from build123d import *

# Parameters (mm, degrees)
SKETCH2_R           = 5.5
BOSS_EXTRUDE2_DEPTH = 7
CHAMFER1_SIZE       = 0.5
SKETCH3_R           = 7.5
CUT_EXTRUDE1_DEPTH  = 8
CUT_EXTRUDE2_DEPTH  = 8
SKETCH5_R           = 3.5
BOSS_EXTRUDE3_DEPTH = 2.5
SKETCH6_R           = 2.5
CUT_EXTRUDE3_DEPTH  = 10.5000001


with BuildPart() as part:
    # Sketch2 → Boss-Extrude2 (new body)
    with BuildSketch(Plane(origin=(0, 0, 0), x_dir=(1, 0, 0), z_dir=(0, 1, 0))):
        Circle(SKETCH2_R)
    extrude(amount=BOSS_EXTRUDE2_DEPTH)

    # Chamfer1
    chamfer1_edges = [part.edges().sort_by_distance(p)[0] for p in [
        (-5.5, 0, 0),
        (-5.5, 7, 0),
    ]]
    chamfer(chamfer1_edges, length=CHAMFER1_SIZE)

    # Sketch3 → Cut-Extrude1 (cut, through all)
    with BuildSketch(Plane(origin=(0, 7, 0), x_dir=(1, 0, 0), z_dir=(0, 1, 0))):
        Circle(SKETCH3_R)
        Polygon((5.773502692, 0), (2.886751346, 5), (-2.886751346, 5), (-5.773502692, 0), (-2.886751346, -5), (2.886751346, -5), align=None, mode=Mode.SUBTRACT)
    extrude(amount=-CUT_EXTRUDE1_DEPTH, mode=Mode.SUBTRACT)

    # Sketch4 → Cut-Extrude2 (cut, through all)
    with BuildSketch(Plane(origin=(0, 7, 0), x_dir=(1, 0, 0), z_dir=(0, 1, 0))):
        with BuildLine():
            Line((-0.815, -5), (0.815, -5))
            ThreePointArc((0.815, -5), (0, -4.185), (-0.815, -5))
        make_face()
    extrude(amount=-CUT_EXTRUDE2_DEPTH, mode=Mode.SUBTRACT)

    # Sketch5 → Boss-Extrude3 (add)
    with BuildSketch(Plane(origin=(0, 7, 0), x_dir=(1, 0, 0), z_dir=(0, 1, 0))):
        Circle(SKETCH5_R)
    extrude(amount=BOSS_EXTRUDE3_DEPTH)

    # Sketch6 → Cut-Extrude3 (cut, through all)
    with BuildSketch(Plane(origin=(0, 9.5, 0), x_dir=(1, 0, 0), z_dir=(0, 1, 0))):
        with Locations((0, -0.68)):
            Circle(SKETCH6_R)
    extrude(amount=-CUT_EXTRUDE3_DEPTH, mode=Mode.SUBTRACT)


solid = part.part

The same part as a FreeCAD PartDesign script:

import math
import FreeCAD as App
import Part
import Sketcher
Q = App.Units.Quantity


def edges_at(feature, points):
    """Names of the edges that pass closest to the given points."""
    edges = feature.Shape.Edges
    near = lambda p: min(range(len(edges)), key=lambda i: edges[i].distToShape(Part.Vertex(*p))[0])
    return sorted({f"Edge{near(p) + 1}" for p in points})


def add_polygon(sketch, points):
    """Adds a closed chain of lines whose ends are joined by coincident constraints."""
    first, n = sketch.GeometryCount, len(points)
    for a, b in zip(points, points[1:] + points[:1]):
        sketch.addGeometry(Part.LineSegment(App.Vector(*a, 0), App.Vector(*b, 0)), False)
    for i in range(n):
        sketch.addConstraint(Sketcher.Constraint("Coincident", first + i, 2, first + (i + 1) % n, 1))

doc = App.newDocument("Part")
body = doc.addObject("PartDesign::Body", "Body")

sketch1 = body.newObject("Sketcher::SketchObject", "Sketch")
sketch1.AttachmentSupport = (doc.getObject("XZ_Plane"), [""])
sketch1.MapMode = "FlatFace"
sketch1.addGeometry(Part.Circle(App.Vector(0, 0, 0), App.Vector(0, 0, 1), 5.5), False)
sketch1.addConstraint([
    Sketcher.Constraint("Coincident", 0, 3, -1, 1),
    Sketcher.Constraint("Diameter", 0, Q("11 mm")),
])
pad1 = body.newObject("PartDesign::Pad", "Pad")
pad1.Profile = sketch1
pad1.Length = 7
pad1.Reversed = True
doc.recompute()

chamfer = body.newObject("PartDesign::Chamfer", "Chamfer")
chamfer.Base = (pad1, edges_at(pad1, [(-5.5, 0, 0), (-5.5, 7, 0)]))
chamfer.Size = 0.5

sketch2 = body.newObject("Sketcher::SketchObject", "Sketch001")
sketch2.AttachmentSupport = (doc.getObject("XZ_Plane"), [""])
sketch2.MapMode = "FlatFace"
sketch2.AttachmentOffset = App.Placement(App.Vector(0, 0, -7), App.Rotation())
sketch2.addGeometry(Part.Circle(App.Vector(0, 0, 0), App.Vector(0, 0, 1), 7.5), False)
add_polygon(sketch2, [(2.886751, -5), (5.773503, 0), (2.886751, 5), (-2.886751, 5), (-5.773503, 0), (-2.886751, -5)])
sketch2.addConstraint([
    Sketcher.Constraint("Horizontal", 3),
    Sketcher.Constraint("Horizontal", 6),
    Sketcher.Constraint("Coincident", 0, 3, -1, 1),
    Sketcher.Constraint("Symmetric", 1, 2, 4, 2, -1, 1),
    Sketcher.Constraint("Symmetric", 2, 2, 5, 2, -1, 1),
    Sketcher.Constraint("PointOnObject", 1, 2, -1),
    Sketcher.Constraint("Parallel", 1, 4),
    Sketcher.Constraint("Vertical", 3, 2, 5, 2),
    Sketcher.Constraint("Diameter", 0, Q("15 mm")),
    Sketcher.Constraint("Angle", 1, Q("60 deg")),
    Sketcher.Constraint("DistanceY", -1, 1, 2, 2, Q("5 mm")),
    Sketcher.Constraint("DistanceX", 3, 2, 3, 1, Q("5.773503 mm")),
])
pocket1 = body.newObject("PartDesign::Pocket", "Pocket")
pocket1.Profile = sketch2
pocket1.Type = "ThroughAll"
pocket1.Reversed = True

sketch3 = body.newObject("Sketcher::SketchObject", "Sketch002")
sketch3.AttachmentSupport = (doc.getObject("XZ_Plane"), [""])
sketch3.MapMode = "FlatFace"
sketch3.AttachmentOffset = App.Placement(App.Vector(0, 0, -7), App.Rotation())
sketch3.addGeometry([
    Part.LineSegment(App.Vector(-0.815, 5, 0), App.Vector(0.815, 5, 0)),
    Part.ArcOfCircle(Part.Circle(App.Vector(0, 5, 0), App.Vector(0, 0, 1), 0.815), math.radians(180), math.radians(360)),
], False)
sketch3.addConstraint([
    Sketcher.Constraint("Coincident", 0, 1, 1, 1),
    Sketcher.Constraint("Coincident", 1, 2, 0, 2),
    Sketcher.Constraint("Horizontal", 0),
    Sketcher.Constraint("PointOnObject", 1, 3, -2),
    Sketcher.Constraint("Horizontal", 1, 3, 0, 1),
    Sketcher.Constraint("DistanceY", -1, 1, 1, 3, Q("5 mm")),
    Sketcher.Constraint("Radius", 1, Q("0.815 mm")),
])
pocket2 = body.newObject("PartDesign::Pocket", "Pocket001")
pocket2.Profile = sketch3
pocket2.Type = "ThroughAll"
pocket2.Reversed = True

sketch4 = body.newObject("Sketcher::SketchObject", "Sketch003")
sketch4.AttachmentSupport = (doc.getObject("XZ_Plane"), [""])
sketch4.MapMode = "FlatFace"
sketch4.AttachmentOffset = App.Placement(App.Vector(0, 0, -7), App.Rotation())
sketch4.addGeometry(Part.Circle(App.Vector(0, 0, 0), App.Vector(0, 0, 1), 3.5), False)
sketch4.addConstraint([
    Sketcher.Constraint("Coincident", 0, 3, -1, 1),
    Sketcher.Constraint("Diameter", 0, Q("7 mm")),
])
pad2 = body.newObject("PartDesign::Pad", "Pad001")
pad2.Profile = sketch4
pad2.Length = 2.5
pad2.Reversed = True

sketch5 = body.newObject("Sketcher::SketchObject", "Sketch004")
sketch5.AttachmentSupport = (doc.getObject("XZ_Plane"), [""])
sketch5.MapMode = "FlatFace"
sketch5.AttachmentOffset = App.Placement(App.Vector(0, 0, -9.5), App.Rotation())
sketch5.addGeometry(Part.Circle(App.Vector(0, 0.68, 0), App.Vector(0, 0, 1), 2.5), False)
sketch5.addConstraint([
    Sketcher.Constraint("PointOnObject", 0, 3, -2),
    Sketcher.Constraint("Diameter", 0, Q("5 mm")),
    Sketcher.Constraint("DistanceY", -1, 1, 0, 3, Q("0.68 mm")),
])
pocket3 = body.newObject("PartDesign::Pocket", "Pocket002")
pocket3.Profile = sketch5
pocket3.Type = "ThroughAll"
pocket3.Reversed = True

doc.recompute()
